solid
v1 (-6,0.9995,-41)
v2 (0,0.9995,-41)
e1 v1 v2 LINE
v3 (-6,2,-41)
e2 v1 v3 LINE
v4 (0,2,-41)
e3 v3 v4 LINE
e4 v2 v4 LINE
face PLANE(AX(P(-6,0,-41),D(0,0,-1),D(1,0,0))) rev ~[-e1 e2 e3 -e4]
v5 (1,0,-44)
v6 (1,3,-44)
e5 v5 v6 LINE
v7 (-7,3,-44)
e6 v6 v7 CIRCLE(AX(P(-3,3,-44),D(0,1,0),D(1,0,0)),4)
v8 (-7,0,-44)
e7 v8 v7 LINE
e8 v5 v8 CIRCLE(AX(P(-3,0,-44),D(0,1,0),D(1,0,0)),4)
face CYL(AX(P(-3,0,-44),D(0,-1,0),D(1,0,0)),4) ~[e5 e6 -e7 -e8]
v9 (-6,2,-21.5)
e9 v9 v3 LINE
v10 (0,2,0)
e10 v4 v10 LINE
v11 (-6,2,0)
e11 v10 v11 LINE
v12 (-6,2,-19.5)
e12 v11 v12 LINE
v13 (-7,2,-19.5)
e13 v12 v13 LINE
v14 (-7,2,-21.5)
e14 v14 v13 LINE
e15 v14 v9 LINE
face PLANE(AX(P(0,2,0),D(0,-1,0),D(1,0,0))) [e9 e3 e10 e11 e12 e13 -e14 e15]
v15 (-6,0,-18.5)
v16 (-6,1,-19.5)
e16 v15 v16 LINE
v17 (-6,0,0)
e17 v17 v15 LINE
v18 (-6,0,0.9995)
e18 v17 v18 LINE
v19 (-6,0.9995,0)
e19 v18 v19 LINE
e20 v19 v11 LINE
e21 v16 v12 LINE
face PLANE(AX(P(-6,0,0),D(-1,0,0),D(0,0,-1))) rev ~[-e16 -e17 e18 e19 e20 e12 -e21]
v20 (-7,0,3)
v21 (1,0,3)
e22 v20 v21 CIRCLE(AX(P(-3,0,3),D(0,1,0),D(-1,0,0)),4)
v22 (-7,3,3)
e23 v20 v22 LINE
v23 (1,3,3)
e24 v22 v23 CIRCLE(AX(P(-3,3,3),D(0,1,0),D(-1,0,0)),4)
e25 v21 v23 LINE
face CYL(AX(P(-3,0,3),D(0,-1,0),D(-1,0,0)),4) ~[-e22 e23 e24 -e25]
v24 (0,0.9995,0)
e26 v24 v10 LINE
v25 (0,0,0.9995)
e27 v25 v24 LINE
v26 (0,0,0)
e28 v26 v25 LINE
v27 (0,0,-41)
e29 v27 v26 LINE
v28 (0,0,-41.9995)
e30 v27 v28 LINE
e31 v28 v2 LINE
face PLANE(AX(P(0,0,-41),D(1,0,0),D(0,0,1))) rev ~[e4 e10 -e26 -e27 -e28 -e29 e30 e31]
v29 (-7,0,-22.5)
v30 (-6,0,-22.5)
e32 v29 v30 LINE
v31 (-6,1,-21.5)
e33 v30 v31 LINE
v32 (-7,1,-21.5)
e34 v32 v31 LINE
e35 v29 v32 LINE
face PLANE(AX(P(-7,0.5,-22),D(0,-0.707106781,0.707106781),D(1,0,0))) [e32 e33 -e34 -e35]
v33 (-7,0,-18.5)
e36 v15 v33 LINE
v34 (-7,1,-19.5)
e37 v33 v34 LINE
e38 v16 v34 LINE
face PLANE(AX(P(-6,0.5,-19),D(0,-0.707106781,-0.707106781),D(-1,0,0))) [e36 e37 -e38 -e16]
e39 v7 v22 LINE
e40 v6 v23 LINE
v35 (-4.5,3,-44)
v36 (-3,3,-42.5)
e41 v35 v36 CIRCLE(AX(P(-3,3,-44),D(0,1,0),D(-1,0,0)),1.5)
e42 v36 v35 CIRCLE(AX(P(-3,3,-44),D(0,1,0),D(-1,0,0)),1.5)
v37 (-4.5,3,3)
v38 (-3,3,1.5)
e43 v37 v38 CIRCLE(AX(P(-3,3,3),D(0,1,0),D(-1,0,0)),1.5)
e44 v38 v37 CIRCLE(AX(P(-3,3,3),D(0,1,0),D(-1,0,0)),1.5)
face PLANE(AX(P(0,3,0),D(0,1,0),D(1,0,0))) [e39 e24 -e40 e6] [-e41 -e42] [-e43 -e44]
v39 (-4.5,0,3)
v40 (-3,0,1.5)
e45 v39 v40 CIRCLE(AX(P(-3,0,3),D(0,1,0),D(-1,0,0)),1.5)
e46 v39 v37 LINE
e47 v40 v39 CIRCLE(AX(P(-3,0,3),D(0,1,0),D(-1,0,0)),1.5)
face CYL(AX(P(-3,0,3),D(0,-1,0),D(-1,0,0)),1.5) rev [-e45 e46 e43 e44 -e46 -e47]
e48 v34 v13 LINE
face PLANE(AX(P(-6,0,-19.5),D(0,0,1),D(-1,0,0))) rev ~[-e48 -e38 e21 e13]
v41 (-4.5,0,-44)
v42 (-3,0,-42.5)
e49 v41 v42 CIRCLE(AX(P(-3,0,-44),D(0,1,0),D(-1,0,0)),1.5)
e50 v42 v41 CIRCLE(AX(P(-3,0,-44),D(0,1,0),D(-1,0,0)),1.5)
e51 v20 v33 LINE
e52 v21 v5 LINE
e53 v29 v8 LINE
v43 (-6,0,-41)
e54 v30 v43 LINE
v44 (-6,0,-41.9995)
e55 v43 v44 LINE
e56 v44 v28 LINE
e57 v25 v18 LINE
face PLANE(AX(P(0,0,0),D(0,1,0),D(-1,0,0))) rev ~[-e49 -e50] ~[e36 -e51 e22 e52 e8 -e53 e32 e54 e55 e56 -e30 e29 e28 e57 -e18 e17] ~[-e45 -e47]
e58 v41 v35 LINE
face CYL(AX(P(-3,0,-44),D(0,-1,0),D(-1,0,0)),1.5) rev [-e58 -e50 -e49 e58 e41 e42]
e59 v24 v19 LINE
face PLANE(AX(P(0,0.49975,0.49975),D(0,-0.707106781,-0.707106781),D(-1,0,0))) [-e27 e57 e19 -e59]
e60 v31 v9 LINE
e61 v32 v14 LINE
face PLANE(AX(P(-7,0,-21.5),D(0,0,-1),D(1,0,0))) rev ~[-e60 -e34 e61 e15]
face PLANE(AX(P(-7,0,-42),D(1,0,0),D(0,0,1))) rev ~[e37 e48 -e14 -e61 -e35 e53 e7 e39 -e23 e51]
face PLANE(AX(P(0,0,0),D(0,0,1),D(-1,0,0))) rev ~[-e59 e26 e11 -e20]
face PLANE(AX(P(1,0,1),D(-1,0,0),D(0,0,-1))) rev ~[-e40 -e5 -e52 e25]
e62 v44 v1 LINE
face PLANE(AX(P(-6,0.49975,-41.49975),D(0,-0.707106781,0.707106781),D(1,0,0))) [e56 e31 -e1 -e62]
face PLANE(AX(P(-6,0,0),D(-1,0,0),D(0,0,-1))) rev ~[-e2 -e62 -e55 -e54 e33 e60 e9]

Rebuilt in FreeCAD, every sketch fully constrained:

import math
import FreeCAD as App
import Part
import Sketcher
from FreeCAD import Vector
Q = App.Units.Quantity


def edges_at(feature, points):
    """Names of the edges that pass closest to the given points."""
    edges = feature.Shape.Edges
    near = lambda p: min(range(len(edges)), key=lambda i: edges[i].distToShape(Part.Vertex(*p))[0])
    return sorted({f"Edge{near(p) + 1}" for p in points})

doc = App.newDocument("Part")
params = doc.addObject("Spreadsheet::Sheet", "Params")
for row, (alias, value) in enumerate([
    ("sketch1_diameter", "3 mm"),
    ("sketch1_radius", "4 mm"),
    ("sketch1_width", "6 mm"),
    ("sketch1_height", "41 mm"),
    ("pad1_length", "3 mm"),
    ("sketch2_width", "6 mm"),
    ("sketch2_height", "41 mm"),
    ("pad2_length", "1 mm"),
    ("sketch3_width", "1 mm"),
    ("sketch3_height", "2 mm"),
    ("pocket1_length", "2 mm"),
    ("chamfer_size", "1 mm"),
    ("chamfer2_size", "1 mm"),
], start=1):
    params.set(f"A{row}", alias)
    params.set(f"B{row}", "=" + value)
    params.setAlias(f"B{row}", alias)

body = doc.addObject("PartDesign::Body", "Body")

# Sketch on XZ plane
sketch1 = body.newObject("Sketcher::SketchObject", "Sketch")
sketch1.AttachmentSupport = (doc.getObject("XZ_Plane"), [""])
sketch1.MapMode = "FlatFace"
sketch1.addGeometry([
    Part.ArcOfCircle(Part.Circle(Vector(-3, -44, 0), Vector(0, 0, 1), 4), math.radians(180), math.radians(360)),  # 0
    Part.LineSegment(Vector(-7, -44, 0), Vector(-7, 3, 0)),  # 1
    Part.ArcOfCircle(Part.Circle(Vector(-3, 3, 0), Vector(0, 0, 1), 4), math.radians(0), math.radians(180)),  # 2
    Part.LineSegment(Vector(1, 3, 0), Vector(1, -44, 0)),  # 3
    Part.LineSegment(Vector(0, -41, 0), Vector(0, 0, 0)),  # 4
    Part.LineSegment(Vector(0, 0, 0), Vector(-6, 0, 0)),  # 5
    Part.LineSegment(Vector(-6, 0, 0), Vector(-6, -41, 0)),  # 6
    Part.LineSegment(Vector(-6, -41, 0), Vector(0, -41, 0)),  # 7
    Part.Circle(Vector(-3, -44, 0), Vector(0, 0, 1), 1.5),  # 8
    Part.Circle(Vector(-3, 3, 0), Vector(0, 0, 1), 1.5),  # 9
], False)
sketch1.addConstraint([
    Sketcher.Constraint("Tangent", 0, 1, 1, 1),
    Sketcher.Constraint("Tangent", 1, 2, 2, 2),
    Sketcher.Constraint("Tangent", 2, 1, 3, 1),
    Sketcher.Constraint("Tangent", 3, 2, 0, 2),
    Sketcher.Constraint("Coincident", 4, 2, 5, 1),
    Sketcher.Constraint("Coincident", 5, 2, 6, 1),
    Sketcher.Constraint("Coincident", 6, 2, 7, 1),
    Sketcher.Constraint("Coincident", 7, 2, 4, 1),
    Sketcher.Constraint("Vertical", 1),
    Sketcher.Constraint("Vertical", 3),
    Sketcher.Constraint("Vertical", 4),
    Sketcher.Constraint("Horizontal", 5),
    Sketcher.Constraint("Vertical", 6),
    Sketcher.Constraint("Horizontal", 7),
    Sketcher.Constraint("Coincident", 4, 2, -1, 1),
    Sketcher.Constraint("Coincident", 8, 3, 0, 3),
    Sketcher.Constraint("Coincident", 9, 3, 2, 3),
    Sketcher.Constraint("Equal", 8, 9),
    Sketcher.Constraint("Diameter", 8, Q("3 mm")),
    Sketcher.Constraint("Radius", 0, Q("4 mm")),
    Sketcher.Constraint("DistanceX", 5, 2, 5, 1, Q("6 mm")),
    Sketcher.Constraint("DistanceY", 4, 1, 4, 2, Q("41 mm")),
    Sketcher.Constraint("DistanceX", 0, 3, -1, 1, Q("3 mm")),
    Sketcher.Constraint("DistanceY", -1, 1, 2, 3, Q("3 mm")),
    Sketcher.Constraint("DistanceY", 0, 1, 6, 2, Q("3 mm")),
])
sketch1.setExpression("Constraints[18]", "Params.sketch1_diameter")
sketch1.setExpression("Constraints[19]", "Params.sketch1_radius")
sketch1.setExpression("Constraints[20]", "Params.sketch1_width")
sketch1.setExpression("Constraints[21]", "Params.sketch1_height")
pad1 = body.newObject("PartDesign::Pad", "Pad")
pad1.Profile = sketch1
pad1.setExpression("Length", "Params.pad1_length")
pad1.Reversed = True

# Sketch on XZ plane
sketch2 = body.newObject("Sketcher::SketchObject", "Sketch001")
sketch2.AttachmentSupport = (doc.getObject("XZ_Plane"), [""])
sketch2.MapMode = "FlatFace"
sketch2.AttachmentOffset = App.Placement(Vector(0, 0, -3), App.Rotation())
sketch2.addGeometry([
    Part.LineSegment(Vector(0, 0, 0), Vector(0, -41, 0)),
    Part.LineSegment(Vector(0, -41, 0), Vector(-6, -41, 0)),
    Part.LineSegment(Vector(-6, -41, 0), Vector(-6, 0, 0)),
    Part.LineSegment(Vector(-6, 0, 0), Vector(0, 0, 0)),
], False)
sketch2.addConstraint([
    Sketcher.Constraint("Coincident", 0, 2, 1, 1),
    Sketcher.Constraint("Coincident", 1, 2, 2, 1),
    Sketcher.Constraint("Coincident", 2, 2, 3, 1),
    Sketcher.Constraint("Coincident", 3, 2, 0, 1),
    Sketcher.Constraint("Vertical", 0),
    Sketcher.Constraint("Horizontal", 1),
    Sketcher.Constraint("Vertical", 2),
    Sketcher.Constraint("Horizontal", 3),
    Sketcher.Constraint("Coincident", 3, 2, -1, 1),
    Sketcher.Constraint("DistanceX", 1, 2, 1, 1, Q("6 mm")),
    Sketcher.Constraint("DistanceY", 0, 2, 0, 1, Q("41 mm")),
])
sketch2.setExpression("Constraints[9]", "Params.sketch2_width")
sketch2.setExpression("Constraints[10]", "Params.sketch2_height")
pad2 = body.newObject("PartDesign::Pad", "Pad001")
pad2.Profile = sketch2
pad2.setExpression("Length", "Params.pad2_length")

# Sketch on XZ plane
sketch3 = body.newObject("Sketcher::SketchObject", "Sketch002")
sketch3.AttachmentSupport = (doc.getObject("XZ_Plane"), [""])
sketch3.MapMode = "FlatFace"
sketch3.addGeometry([
    Part.LineSegment(Vector(-7, -21.5, 0), Vector(-6, -21.5, 0)),
    Part.LineSegment(Vector(-6, -21.5, 0), Vector(-6, -19.5, 0)),
    Part.LineSegment(Vector(-6, -19.5, 0), Vector(-7, -19.5, 0)),
    Part.LineSegment(Vector(-7, -19.5, 0), Vector(-7, -21.5, 0)),
], False)
sketch3.addConstraint([
    Sketcher.Constraint("Coincident", 0, 2, 1, 1),
    Sketcher.Constraint("Coincident", 1, 2, 2, 1),
    Sketcher.Constraint("Coincident", 2, 2, 3, 1),
    Sketcher.Constraint("Coincident", 3, 2, 0, 1),
    Sketcher.Constraint("Horizontal", 0),
    Sketcher.Constraint("Vertical", 1),
    Sketcher.Constraint("Horizontal", 2),
    Sketcher.Constraint("Vertical", 3),
    Sketcher.Constraint("DistanceX", 0, 1, 0, 2, Q("1 mm")),
    Sketcher.Constraint("DistanceY", 1, 1, 1, 2, Q("2 mm")),
    Sketcher.Constraint("DistanceX", 0, 2, -1, 1, Q("6 mm")),
    Sketcher.Constraint("DistanceY", 0, 2, -1, 1, Q("21.5 mm")),
])
sketch3.setExpression("Constraints[8]", "Params.sketch3_width")
sketch3.setExpression("Constraints[9]", "Params.sketch3_height")
pocket1 = body.newObject("PartDesign::Pocket", "Pocket")
pocket1.Profile = sketch3
pocket1.setExpression("Length", "Params.pocket1_length")
doc.recompute()

chamfer = body.newObject("PartDesign::Chamfer", "Chamfer")
chamfer.Base = (pocket1, edges_at(pocket1, [(-6.5, 0, -19.5), (-6.5, 0, -21.5)]))
chamfer.setExpression("Size", "Params.chamfer_size")
doc.recompute()

chamfer2 = body.newObject("PartDesign::Chamfer", "Chamfer001")
chamfer2.Base = (chamfer, edges_at(chamfer, [(-3, 0, 0), (-3, 0, -41)]))
chamfer2.setExpression("Size", "Params.chamfer2_size")

doc.recompute()
